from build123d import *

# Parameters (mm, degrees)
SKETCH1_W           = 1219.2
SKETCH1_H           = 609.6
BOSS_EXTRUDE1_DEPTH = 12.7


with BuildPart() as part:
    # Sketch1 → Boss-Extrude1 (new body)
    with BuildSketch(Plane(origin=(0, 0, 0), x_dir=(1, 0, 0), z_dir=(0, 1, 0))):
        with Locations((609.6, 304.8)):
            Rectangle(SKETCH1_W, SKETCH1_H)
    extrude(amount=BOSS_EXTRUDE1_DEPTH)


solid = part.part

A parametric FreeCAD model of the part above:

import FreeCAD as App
import Part
import Sketcher

V = App.Vector
Q = App.Units.Quantity

doc = App.newDocument("Part")
params = doc.addObject("Spreadsheet::Sheet", "Params")
for row, (alias, value) in enumerate([
    ("sketch1_width", "48 in"),
    ("sketch1_height", "24 in"),
    ("pad1_length", "0.5 in"),
], start=1):
    params.set(f"A{row}", alias)
    params.set(f"B{row}", "=" + value)
    params.setAlias(f"B{row}", alias)

body = doc.addObject("PartDesign::Body", "Body")

# Sketch on XZ plane
sketch1 = body.newObject("Sketcher::SketchObject", "Sketch")
sketch1.AttachmentSupport = (doc.getObject("XZ_Plane"), [""])
sketch1.MapMode = "FlatFace"
sketch1.addGeometry([
    Part.LineSegment(V(0, -610, 0), V(0, 0, 0)),
    Part.LineSegment(V(0, 0, 0), V(1219, 0, 0)),
    Part.LineSegment(V(1219, 0, 0), V(1219, -610, 0)),
    Part.LineSegment(V(1219, -610, 0), V(0, -610, 0)),
], False)
sketch1.addConstraint([
    Sketcher.Constraint("Coincident", 0, 2, 1, 1),
    Sketcher.Constraint("Coincident", 1, 2, 2, 1),
    Sketcher.Constraint("Coincident", 2, 2, 3, 1),
    Sketcher.Constraint("Coincident", 3, 2, 0, 1),
    Sketcher.Constraint("Vertical", 0),
    Sketcher.Constraint("Horizontal", 1),
    Sketcher.Constraint("Vertical", 2),
    Sketcher.Constraint("Horizontal", 3),
    Sketcher.Constraint("Coincident", 0, 2, -1, 1),
    Sketcher.Constraint("DistanceX", 1, 1, 1, 2, Q("48 in")),
    Sketcher.Constraint("DistanceY", 0, 1, 0, 2, Q("24 in")),
])
sketch1.setExpression("Constraints[9]", "Params.sketch1_width")
sketch1.setExpression("Constraints[10]", "Params.sketch1_height")
pad1 = body.newObject("PartDesign::Pad", "Pad")
pad1.Profile = sketch1
pad1.setExpression("Length", "Params.pad1_length")
pad1.Reversed = True

doc.recompute()
